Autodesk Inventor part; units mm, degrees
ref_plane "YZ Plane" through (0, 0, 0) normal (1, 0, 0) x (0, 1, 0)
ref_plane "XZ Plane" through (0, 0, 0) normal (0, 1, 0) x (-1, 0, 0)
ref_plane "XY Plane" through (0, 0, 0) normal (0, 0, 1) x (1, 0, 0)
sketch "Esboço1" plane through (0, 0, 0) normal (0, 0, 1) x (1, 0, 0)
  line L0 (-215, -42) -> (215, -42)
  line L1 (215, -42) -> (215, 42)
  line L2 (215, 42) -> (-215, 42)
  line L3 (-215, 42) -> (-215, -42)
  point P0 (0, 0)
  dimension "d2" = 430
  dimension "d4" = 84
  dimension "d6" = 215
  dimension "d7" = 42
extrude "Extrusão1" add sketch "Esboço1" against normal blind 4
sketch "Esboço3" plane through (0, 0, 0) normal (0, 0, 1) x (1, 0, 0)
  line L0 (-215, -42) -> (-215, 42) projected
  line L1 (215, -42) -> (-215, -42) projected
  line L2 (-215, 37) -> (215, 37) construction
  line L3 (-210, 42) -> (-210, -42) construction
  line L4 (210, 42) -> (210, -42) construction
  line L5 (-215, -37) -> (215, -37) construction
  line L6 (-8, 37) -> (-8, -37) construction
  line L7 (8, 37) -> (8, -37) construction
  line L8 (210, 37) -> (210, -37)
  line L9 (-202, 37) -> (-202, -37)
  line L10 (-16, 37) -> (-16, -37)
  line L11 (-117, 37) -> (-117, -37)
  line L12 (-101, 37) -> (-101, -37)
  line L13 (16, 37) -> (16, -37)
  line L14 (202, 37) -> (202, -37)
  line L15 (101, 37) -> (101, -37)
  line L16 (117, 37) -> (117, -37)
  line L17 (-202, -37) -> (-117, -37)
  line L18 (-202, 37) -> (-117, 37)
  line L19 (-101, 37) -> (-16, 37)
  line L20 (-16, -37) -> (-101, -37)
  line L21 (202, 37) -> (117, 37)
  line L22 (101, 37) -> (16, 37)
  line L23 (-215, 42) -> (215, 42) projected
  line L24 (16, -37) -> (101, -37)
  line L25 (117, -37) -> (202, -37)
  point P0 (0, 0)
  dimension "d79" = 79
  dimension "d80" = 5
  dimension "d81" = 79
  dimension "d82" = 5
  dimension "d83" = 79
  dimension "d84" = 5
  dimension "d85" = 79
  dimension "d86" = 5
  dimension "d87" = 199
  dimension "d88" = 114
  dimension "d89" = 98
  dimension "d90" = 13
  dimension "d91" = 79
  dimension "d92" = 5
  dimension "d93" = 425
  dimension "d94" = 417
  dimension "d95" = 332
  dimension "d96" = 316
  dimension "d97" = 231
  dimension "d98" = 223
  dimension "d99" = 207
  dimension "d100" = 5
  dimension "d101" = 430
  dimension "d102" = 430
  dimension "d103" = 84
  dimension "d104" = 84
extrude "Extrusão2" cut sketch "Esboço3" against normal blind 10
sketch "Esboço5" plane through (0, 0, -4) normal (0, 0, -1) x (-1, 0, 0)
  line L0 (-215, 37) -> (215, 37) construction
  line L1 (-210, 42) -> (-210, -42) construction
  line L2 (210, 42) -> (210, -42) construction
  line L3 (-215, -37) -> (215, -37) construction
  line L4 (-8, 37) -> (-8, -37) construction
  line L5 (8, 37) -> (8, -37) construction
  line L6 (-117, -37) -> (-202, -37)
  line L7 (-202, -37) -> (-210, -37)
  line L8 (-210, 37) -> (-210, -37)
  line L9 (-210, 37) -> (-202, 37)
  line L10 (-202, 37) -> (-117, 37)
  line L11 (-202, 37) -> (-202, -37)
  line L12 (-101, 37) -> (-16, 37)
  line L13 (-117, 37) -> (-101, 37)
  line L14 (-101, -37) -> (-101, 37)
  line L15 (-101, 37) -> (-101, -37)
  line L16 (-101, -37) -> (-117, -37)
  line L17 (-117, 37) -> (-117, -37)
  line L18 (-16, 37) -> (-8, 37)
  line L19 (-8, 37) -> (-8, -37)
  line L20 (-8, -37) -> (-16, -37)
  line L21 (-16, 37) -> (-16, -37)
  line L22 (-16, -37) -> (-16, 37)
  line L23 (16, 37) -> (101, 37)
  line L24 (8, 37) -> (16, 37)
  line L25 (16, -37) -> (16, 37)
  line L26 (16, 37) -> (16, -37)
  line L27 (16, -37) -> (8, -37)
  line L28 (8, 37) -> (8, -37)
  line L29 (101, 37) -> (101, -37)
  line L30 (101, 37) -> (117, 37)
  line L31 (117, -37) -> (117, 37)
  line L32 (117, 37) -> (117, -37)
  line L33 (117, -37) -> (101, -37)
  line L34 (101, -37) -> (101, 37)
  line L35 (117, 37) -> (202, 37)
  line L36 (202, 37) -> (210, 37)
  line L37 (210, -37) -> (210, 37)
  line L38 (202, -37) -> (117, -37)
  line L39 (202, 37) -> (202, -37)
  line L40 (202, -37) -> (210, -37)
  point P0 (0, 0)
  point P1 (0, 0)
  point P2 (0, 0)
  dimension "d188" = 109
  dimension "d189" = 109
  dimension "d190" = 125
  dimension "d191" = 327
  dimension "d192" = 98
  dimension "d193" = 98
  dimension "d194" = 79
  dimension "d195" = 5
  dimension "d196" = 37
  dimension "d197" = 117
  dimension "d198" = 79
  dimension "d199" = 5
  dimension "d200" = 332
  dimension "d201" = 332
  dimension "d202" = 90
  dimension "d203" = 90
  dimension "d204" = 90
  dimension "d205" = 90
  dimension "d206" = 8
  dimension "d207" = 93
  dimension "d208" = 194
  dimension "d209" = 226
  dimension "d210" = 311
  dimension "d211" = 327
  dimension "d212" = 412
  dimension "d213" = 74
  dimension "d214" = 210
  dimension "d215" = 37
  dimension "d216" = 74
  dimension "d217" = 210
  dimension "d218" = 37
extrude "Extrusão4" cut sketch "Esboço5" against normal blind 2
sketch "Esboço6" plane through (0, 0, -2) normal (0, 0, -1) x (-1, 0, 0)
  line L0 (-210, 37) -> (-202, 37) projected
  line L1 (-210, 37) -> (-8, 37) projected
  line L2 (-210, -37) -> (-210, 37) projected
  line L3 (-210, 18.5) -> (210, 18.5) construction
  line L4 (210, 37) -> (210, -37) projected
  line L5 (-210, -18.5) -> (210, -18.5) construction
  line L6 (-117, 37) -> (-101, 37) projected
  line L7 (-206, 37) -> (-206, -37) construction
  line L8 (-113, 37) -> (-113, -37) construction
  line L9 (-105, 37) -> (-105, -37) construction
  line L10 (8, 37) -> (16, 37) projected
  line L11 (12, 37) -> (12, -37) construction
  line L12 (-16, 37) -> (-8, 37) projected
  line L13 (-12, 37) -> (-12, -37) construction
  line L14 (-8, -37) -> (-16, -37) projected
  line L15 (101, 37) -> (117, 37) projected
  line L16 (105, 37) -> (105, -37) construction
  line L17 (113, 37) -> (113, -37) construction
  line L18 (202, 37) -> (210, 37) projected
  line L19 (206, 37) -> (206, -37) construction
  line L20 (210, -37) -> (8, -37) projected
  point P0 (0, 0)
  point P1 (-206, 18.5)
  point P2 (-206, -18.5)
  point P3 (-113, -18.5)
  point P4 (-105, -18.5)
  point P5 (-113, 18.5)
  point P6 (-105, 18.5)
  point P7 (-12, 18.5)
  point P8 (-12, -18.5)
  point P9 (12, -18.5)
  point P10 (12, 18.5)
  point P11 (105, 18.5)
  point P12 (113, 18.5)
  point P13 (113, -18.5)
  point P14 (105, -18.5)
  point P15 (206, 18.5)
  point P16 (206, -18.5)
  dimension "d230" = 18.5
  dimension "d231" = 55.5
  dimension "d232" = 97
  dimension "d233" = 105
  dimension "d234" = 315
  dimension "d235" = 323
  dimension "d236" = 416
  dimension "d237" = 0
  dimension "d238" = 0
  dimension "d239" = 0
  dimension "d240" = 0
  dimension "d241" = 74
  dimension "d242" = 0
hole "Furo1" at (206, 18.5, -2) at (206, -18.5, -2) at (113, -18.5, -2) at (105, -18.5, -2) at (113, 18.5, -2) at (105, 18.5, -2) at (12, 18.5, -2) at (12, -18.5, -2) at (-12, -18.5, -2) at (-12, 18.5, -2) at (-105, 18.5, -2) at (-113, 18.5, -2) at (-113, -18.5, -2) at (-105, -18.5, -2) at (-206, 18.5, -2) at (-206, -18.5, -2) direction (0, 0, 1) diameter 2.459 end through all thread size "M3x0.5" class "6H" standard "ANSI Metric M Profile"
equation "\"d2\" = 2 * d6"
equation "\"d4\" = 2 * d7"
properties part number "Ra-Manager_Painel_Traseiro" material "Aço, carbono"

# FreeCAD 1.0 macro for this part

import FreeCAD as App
import Part
import Sketcher

doc = App.newDocument("Part")
body = doc.addObject("PartDesign::Body", "Body")

# Sketch on XY plane
sketch1 = body.newObject("Sketcher::SketchObject", "Sketch")
sketch1.AttachmentSupport = (doc.getObject("XY_Plane"), [""])
sketch1.MapMode = "FlatFace"
sketch1.addGeometry(Part.LineSegment(App.Vector(-215, 42, 0), App.Vector(-215, -42, 0)), False)
sketch1.addGeometry(Part.LineSegment(App.Vector(-215, -42, 0), App.Vector(215, -42, 0)), False)
sketch1.addGeometry(Part.LineSegment(App.Vector(215, -42, 0), App.Vector(215, 42, 0)), False)
sketch1.addGeometry(Part.LineSegment(App.Vector(215, 42, 0), App.Vector(-215, 42, 0)), False)
sketch1.addConstraint(Sketcher.Constraint("Coincident", 0, 2, 1, 1))
sketch1.addConstraint(Sketcher.Constraint("Coincident", 1, 2, 2, 1))
sketch1.addConstraint(Sketcher.Constraint("Coincident", 2, 2, 3, 1))
sketch1.addConstraint(Sketcher.Constraint("Coincident", 3, 2, 0, 1))
sketch1.addConstraint(Sketcher.Constraint("Vertical", 0))
sketch1.addConstraint(Sketcher.Constraint("Horizontal", 1))
sketch1.addConstraint(Sketcher.Constraint("Vertical", 2))
sketch1.addConstraint(Sketcher.Constraint("Horizontal", 3))
sketch1.addConstraint(Sketcher.Constraint("Symmetric", 0, 2, 2, 2, -1, 1))
sketch1.addConstraint(Sketcher.Constraint("DistanceX", 1, 1, 1, 2, 430.0))
sketch1.addConstraint(Sketcher.Constraint("DistanceY", 0, 2, 0, 1, 84.0))
pad1 = body.newObject("PartDesign::Pad", "Pad")
pad1.Profile = sketch1
pad1.Length = 4
pad1.Reversed = True

# Sketch on XY plane
sketch2 = body.newObject("Sketcher::SketchObject", "Sketch001")
sketch2.AttachmentSupport = (doc.getObject("XY_Plane"), [""])
sketch2.MapMode = "FlatFace"
sketch2.addGeometry(Part.LineSegment(App.Vector(-117, 37, 0), App.Vector(-202, 37, 0)), False)
sketch2.addGeometry(Part.LineSegment(App.Vector(-202, 37, 0), App.Vector(-202, -37, 0)), False)
sketch2.addGeometry(Part.LineSegment(App.Vector(-202, -37, 0), App.Vector(-117, -37, 0)), False)
sketch2.addGeometry(Part.LineSegment(App.Vector(-117, -37, 0), App.Vector(-117, 37, 0)), False)
sketch2.addGeometry(Part.LineSegment(App.Vector(-16, -37, 0), App.Vector(-16, 37, 0)), False)
sketch2.addGeometry(Part.LineSegment(App.Vector(-16, 37, 0), App.Vector(-101, 37, 0)), False)
sketch2.addGeometry(Part.LineSegment(App.Vector(-101, 37, 0), App.Vector(-101, -37, 0)), False)
sketch2.addGeometry(Part.LineSegment(App.Vector(-101, -37, 0), App.Vector(-16, -37, 0)), False)
sketch2.addGeometry(Part.LineSegment(App.Vector(101, 37, 0), App.Vector(16, 37, 0)), False)
sketch2.addGeometry(Part.LineSegment(App.Vector(16, 37, 0), App.Vector(16, -37, 0)), False)
sketch2.addGeometry(Part.LineSegment(App.Vector(16, -37, 0), App.Vector(101, -37, 0)), False)
sketch2.addGeometry(Part.LineSegment(App.Vector(101, -37, 0), App.Vector(101, 37, 0)), False)
sketch2.addGeometry(Part.LineSegment(App.Vector(202, -37, 0), App.Vector(202, 37, 0)), False)
sketch2.addGeometry(Part.LineSegment(App.Vector(202, 37, 0), App.Vector(117, 37, 0)), False)
sketch2.addGeometry(Part.LineSegment(App.Vector(117, 37, 0), App.Vector(117, -37, 0)), False)
sketch2.addGeometry(Part.LineSegment(App.Vector(117, -37, 0), App.Vector(202, -37, 0)), False)
sketch2.addConstraint(Sketcher.Constraint("Coincident", 0, 2, 1, 1))
sketch2.addConstraint(Sketcher.Constraint("Coincident", 1, 2, 2, 1))
sketch2.addConstraint(Sketcher.Constraint("Coincident", 2, 2, 3, 1))
sketch2.addConstraint(Sketcher.Constraint("Coincident", 3, 2, 0, 1))
sketch2.addConstraint(Sketcher.Constraint("Coincident", 4, 2, 5, 1))
sketch2.addConstraint(Sketcher.Constraint("Coincident", 5, 2, 6, 1))
sketch2.addConstraint(Sketcher.Constraint("Coincident", 6, 2, 7, 1))
sketch2.addConstraint(Sketcher.Constraint("Coincident", 7, 2, 4, 1))
sketch2.addConstraint(Sketcher.Constraint("Coincident", 8, 2, 9, 1))
sketch2.addConstraint(Sketcher.Constraint("Coincident", 9, 2, 10, 1))
sketch2.addConstraint(Sketcher.Constraint("Coincident", 10, 2, 11, 1))
sketch2.addConstraint(Sketcher.Constraint("Coincident", 11, 2, 8, 1))
sketch2.addConstraint(Sketcher.Constraint("Coincident", 12, 2, 13, 1))
sketch2.addConstraint(Sketcher.Constraint("Coincident", 13, 2, 14, 1))
sketch2.addConstraint(Sketcher.Constraint("Coincident", 14, 2, 15, 1))
sketch2.addConstraint(Sketcher.Constraint("Coincident", 15, 2, 12, 1))
sketch2.addConstraint(Sketcher.Constraint("Horizontal", 0))
sketch2.addConstraint(Sketcher.Constraint("Vertical", 1))
sketch2.addConstraint(Sketcher.Constraint("Horizontal", 2))
sketch2.addConstraint(Sketcher.Constraint("Vertical", 3))
sketch2.addConstraint(Sketcher.Constraint("Vertical", 4))
sketch2.addConstraint(Sketcher.Constraint("Horizontal", 5))
sketch2.addConstraint(Sketcher.Constraint("Vertical", 6))
sketch2.addConstraint(Sketcher.Constraint("Horizontal", 7))
sketch2.addConstraint(Sketcher.Constraint("Horizontal", 8))
sketch2.addConstraint(Sketcher.Constraint("Vertical", 9))
sketch2.addConstraint(Sketcher.Constraint("Horizontal", 10))
sketch2.addConstraint(Sketcher.Constraint("Vertical", 11))
sketch2.addConstraint(Sketcher.Constraint("Vertical", 12))
sketch2.addConstraint(Sketcher.Constraint("Horizontal", 13))
sketch2.addConstraint(Sketcher.Constraint("Vertical", 14))
sketch2.addConstraint(Sketcher.Constraint("Horizontal", 15))
sketch2.addConstraint(Sketcher.Constraint("Symmetric", 7, 2, 8, 2, -1, 1))
sketch2.addConstraint(Sketcher.Constraint("Symmetric", 5, 2, 10, 2, -1, 1))
sketch2.addConstraint(Sketcher.Constraint("Symmetric", 1, 2, 12, 2, -1, 1))
sketch2.addConstraint(Sketcher.Constraint("Symmetric", 3, 2, 14, 2, -1, 1))
sketch2.addConstraint(Sketcher.Constraint("Horizontal", 3, 2, 4, 2))
sketch2.addConstraint(Sketcher.Constraint("Horizontal", 2, 2, 6, 2))
sketch2.addConstraint(Sketcher.Constraint("Horizontal", 5, 2, 8, 2))
sketch2.addConstraint(Sketcher.Constraint("Equal", 2, 5))
sketch2.addConstraint(Sketcher.Constraint("DistanceX", 0, 2, 0, 1, 85.0))
sketch2.addConstraint(Sketcher.Constraint("DistanceY", 1, 2, 1, 1, 74.0))
sketch2.addConstraint(Sketcher.Constraint("DistanceX", 0, 2, -1, 1, 202.0))
sketch2.addConstraint(Sketcher.Constraint("DistanceX", 4, 2, -1, 1, 16.0))
pocket1 = body.newObject("PartDesign::Pocket", "Pocket")
pocket1.Profile = sketch2
pocket1.Length = 10

# Sketch on XY plane
sketch3 = body.newObject("Sketcher::SketchObject", "Sketch002")
sketch3.AttachmentSupport = (doc.getObject("XY_Plane"), [""])
sketch3.MapMode = "FlatFace"
sketch3.AttachmentOffset = App.Placement(App.Vector(0, 0, -4), App.Rotation())
sketch3.addGeometry(Part.LineSegment(App.Vector(8, 37, 0), App.Vector(16, 37, 0)), False)
sketch3.addGeometry(Part.LineSegment(App.Vector(16, 37, 0), App.Vector(16, -37, 0)), False)
sketch3.addGeometry(Part.LineSegment(App.Vector(16, -37, 0), App.Vector(8, -37, 0)), False)
sketch3.addGeometry(Part.LineSegment(App.Vector(8, -37, 0), App.Vector(8, 37, 0)), False)
sketch3.addGeometry(Part.LineSegment(App.Vector(101, 37, 0), App.Vector(210, 37, 0)), False)
sketch3.addGeometry(Part.LineSegment(App.Vector(210, 37, 0), App.Vector(210, -37, 0)), False)
sketch3.addGeometry(Part.LineSegment(App.Vector(210, -37, 0), App.Vector(101, -37, 0)), False)
sketch3.addGeometry(Part.LineSegment(App.Vector(101, -37, 0), App.Vector(101, 37, 0)), False)
sketch3.addGeometry(Part.LineSegment(App.Vector(-101, 37, 0), App.Vector(-101, -37, 0)), False)
sketch3.addGeometry(Part.LineSegment(App.Vector(-101, -37, 0), App.Vector(-210, -37, 0)), False)
sketch3.addGeometry(Part.LineSegment(App.Vector(-210, -37, 0), App.Vector(-210, 37, 0)), False)
sketch3.addGeometry(Part.LineSegment(App.Vector(-210, 37, 0), App.Vector(-101, 37, 0)), False)
sketch3.addGeometry(Part.LineSegment(App.Vector(-16, -37, 0), App.Vector(-16, 37, 0)), False)
sketch3.addGeometry(Part.LineSegment(App.Vector(-16, 37, 0), App.Vector(-8, 37, 0)), False)
sketch3.addGeometry(Part.LineSegment(App.Vector(-8, 37, 0), App.Vector(-8, -37, 0)), False)
sketch3.addGeometry(Part.LineSegment(App.Vector(-8, -37, 0), App.Vector(-16, -37, 0)), False)
sketch3.addConstraint(Sketcher.Constraint("Coincident", 0, 2, 1, 1))
sketch3.addConstraint(Sketcher.Constraint("Coincident", 1, 2, 2, 1))
sketch3.addConstraint(Sketcher.Constraint("Coincident", 2, 2, 3, 1))
sketch3.addConstraint(Sketcher.Constraint("Coincident", 3, 2, 0, 1))
sketch3.addConstraint(Sketcher.Constraint("Coincident", 4, 2, 5, 1))
sketch3.addConstraint(Sketcher.Constraint("Coincident", 5, 2, 6, 1))
sketch3.addConstraint(Sketcher.Constraint("Coincident", 6, 2, 7, 1))
sketch3.addConstraint(Sketcher.Constraint("Coincident", 7, 2, 4, 1))
sketch3.addConstraint(Sketcher.Constraint("Coincident", 8, 2, 9, 1))
sketch3.addConstraint(Sketcher.Constraint("Coincident", 9, 2, 10, 1))
sketch3.addConstraint(Sketcher.Constraint("Coincident", 10, 2, 11, 1))
sketch3.addConstraint(Sketcher.Constraint("Coincident", 11, 2, 8, 1))
sketch3.addConstraint(Sketcher.Constraint("Coincident", 12, 2, 13, 1))
sketch3.addConstraint(Sketcher.Constraint("Coincident", 13, 2, 14, 1))
sketch3.addConstraint(Sketcher.Constraint("Coincident", 14, 2, 15, 1))
sketch3.addConstraint(Sketcher.Constraint("Coincident", 15, 2, 12, 1))
sketch3.addConstraint(Sketcher.Constraint("Horizontal", 0))
sketch3.addConstraint(Sketcher.Constraint("Vertical", 1))
sketch3.addConstraint(Sketcher.Constraint("Horizontal", 2))
sketch3.addConstraint(Sketcher.Constraint("Vertical", 3))
sketch3.addConstraint(Sketcher.Constraint("Horizontal", 4))
sketch3.addConstraint(Sketcher.Constraint("Vertical", 5))
sketch3.addConstraint(Sketcher.Constraint("Horizontal", 6))
sketch3.addConstraint(Sketcher.Constraint("Vertical", 7))
sketch3.addConstraint(Sketcher.Constraint("Vertical", 8))
sketch3.addConstraint(Sketcher.Constraint("Horizontal", 9))
sketch3.addConstraint(Sketcher.Constraint("Vertical", 10))
sketch3.addConstraint(Sketcher.Constraint("Horizontal", 11))
sketch3.addConstraint(Sketcher.Constraint("Vertical", 12))
sketch3.addConstraint(Sketcher.Constraint("Horizontal", 13))
sketch3.addConstraint(Sketcher.Constraint("Vertical", 14))
sketch3.addConstraint(Sketcher.Constraint("Horizontal", 15))
sketch3.addConstraint(Sketcher.Constraint("Symmetric", 7, 2, 8, 2, -1, 1))
sketch3.addConstraint(Sketcher.Constraint("Symmetric", 5, 2, 10, 2, -1, 1))
sketch3.addConstraint(Sketcher.Constraint("Symmetric", 1, 2, 12, 2, -1, 1))
sketch3.addConstraint(Sketcher.Constraint("Symmetric", 3, 2, 14, 2, -1, 1))
sketch3.addConstraint(Sketcher.Constraint("Horizontal", 3, 2, 4, 2))
sketch3.addConstraint(Sketcher.Constraint("Horizontal", 2, 2, 5, 2))
sketch3.addConstraint(Sketcher.Constraint("Horizontal", 6, 2, 8, 2))
sketch3.addConstraint(Sketcher.Constraint("DistanceX", 0, 1, 0, 2, 8.0))
sketch3.addConstraint(Sketcher.Constraint("DistanceX", 4, 1, 4, 2, 109.0))
sketch3.addConstraint(Sketcher.Constraint("DistanceY", 1, 2, 1, 1, 74.0))
sketch3.addConstraint(Sketcher.Constraint("DistanceX", -1, 1, 2, 2, 8.0))
sketch3.addConstraint(Sketcher.Constraint("DistanceX", -1, 1, 4, 2, 210.0))
pocket2 = body.newObject("PartDesign::Pocket", "Pocket001")
pocket2.Profile = sketch3
pocket2.Length = 2
pocket2.Reversed = True

# Sketch on XY plane
sketch4 = body.newObject("Sketcher::SketchObject", "Sketch003")
sketch4.AttachmentSupport = (doc.getObject("XY_Plane"), [""])
sketch4.MapMode = "FlatFace"
sketch4.AttachmentOffset = App.Placement(App.Vector(0, 0, -2), App.Rotation())
sketch4.addGeometry(Part.Circle(App.Vector(206, 18.5, 0), App.Vector(0, 0, 1), 1.2295), False)
sketch4.addGeometry(Part.Circle(App.Vector(206, -18.5, 0), App.Vector(0, 0, 1), 1.2295), False)
sketch4.addGeometry(Part.Circle(App.Vector(113, -18.5, 0), App.Vector(0, 0, 1), 1.2295), False)
sketch4.addGeometry(Part.Circle(App.Vector(105, -18.5, 0), App.Vector(0, 0, 1), 1.2295), False)
sketch4.addGeometry(Part.Circle(App.Vector(113, 18.5, 0), App.Vector(0, 0, 1), 1.2295), False)
sketch4.addGeometry(Part.Circle(App.Vector(105, 18.5, 0), App.Vector(0, 0, 1), 1.2295), False)
sketch4.addGeometry(Part.Circle(App.Vector(12, 18.5, 0), App.Vector(0, 0, 1), 1.2295), False)
sketch4.addGeometry(Part.Circle(App.Vector(12, -18.5, 0), App.Vector(0, 0, 1), 1.2295), False)
sketch4.addGeometry(Part.Circle(App.Vector(-12, -18.5, 0), App.Vector(0, 0, 1), 1.2295), False)
sketch4.addGeometry(Part.Circle(App.Vector(-12, 18.5, 0), App.Vector(0, 0, 1), 1.2295), False)
sketch4.addGeometry(Part.Circle(App.Vector(-105, 18.5, 0), App.Vector(0, 0, 1), 1.2295), False)
sketch4.addGeometry(Part.Circle(App.Vector(-113, 18.5, 0), App.Vector(0, 0, 1), 1.2295), False)
sketch4.addGeometry(Part.Circle(App.Vector(-113, -18.5, 0), App.Vector(0, 0, 1), 1.2295), False)
sketch4.addGeometry(Part.Circle(App.Vector(-105, -18.5, 0), App.Vector(0, 0, 1), 1.2295), False)
sketch4.addGeometry(Part.Circle(App.Vector(-206, 18.5, 0), App.Vector(0, 0, 1), 1.2295), False)
sketch4.addGeometry(Part.Circle(App.Vector(-206, -18.5, 0), App.Vector(0, 0, 1), 1.2295), False)
sketch4.addConstraint(Sketcher.Constraint("Equal", 0, 1))
sketch4.addConstraint(Sketcher.Constraint("Equal", 1, 2))
sketch4.addConstraint(Sketcher.Constraint("Equal", 2, 3))
sketch4.addConstraint(Sketcher.Constraint("Equal", 3, 4))
sketch4.addConstraint(Sketcher.Constraint("Equal", 4, 5))
sketch4.addConstraint(Sketcher.Constraint("Equal", 5, 6))
sketch4.addConstraint(Sketcher.Constraint("Equal", 6, 7))
sketch4.addConstraint(Sketcher.Constraint("Equal", 7, 8))
sketch4.addConstraint(Sketcher.Constraint("Equal", 8, 9))
sketch4.addConstraint(Sketcher.Constraint("Equal", 9, 10))
sketch4.addConstraint(Sketcher.Constraint("Equal", 10, 11))
sketch4.addConstraint(Sketcher.Constraint("Equal", 11, 12))
sketch4.addConstraint(Sketcher.Constraint("Equal", 12, 13))
sketch4.addConstraint(Sketcher.Constraint("Equal", 13, 14))
sketch4.addConstraint(Sketcher.Constraint("Equal", 14, 15))
sketch4.addConstraint(Sketcher.Constraint("Symmetric", 6, 3, 8, 3, -1, 1))
sketch4.addConstraint(Sketcher.Constraint("Symmetric", 7, 3, 9, 3, -1, 1))
sketch4.addConstraint(Sketcher.Constraint("Symmetric", 3, 3, 10, 3, -1, 1))
sketch4.addConstraint(Sketcher.Constraint("Symmetric", 2, 3, 11, 3, -1, 1))
sketch4.addConstraint(Sketcher.Constraint("Symmetric", 4, 3, 12, 3, -1, 1))
sketch4.addConstraint(Sketcher.Constraint("Symmetric", 5, 3, 13, 3, -1, 1))
sketch4.addConstraint(Sketcher.Constraint("Symmetric", 1, 3, 14, 3, -1, 1))
sketch4.addConstraint(Sketcher.Constraint("Symmetric", 0, 3, 15, 3, -1, 1))
sketch4.addConstraint(Sketcher.Constraint("Symmetric", 7, 3, 8, 3, -2))
sketch4.addConstraint(Sketcher.Constraint("Symmetric", 5, 3, 10, 3, -2))
sketch4.addConstraint(Sketcher.Constraint("Symmetric", 4, 3, 11, 3, -2))
sketch4.addConstraint(Sketcher.Constraint("Symmetric", 0, 3, 14, 3, -2))
sketch4.addConstraint(Sketcher.Constraint("Horizontal", 1, 3, 2, 3))
sketch4.addConstraint(Sketcher.Constraint("Horizontal", 2, 3, 3, 3))
sketch4.addConstraint(Sketcher.Constraint("Horizontal", 5, 3, 6, 3))
sketch4.addConstraint(Sketcher.Constraint("Diameter", 0, 2.459))
sketch4.addConstraint(Sketcher.Constraint("DistanceX", -1, 1, 0, 3, 206.0))
sketch4.addConstraint(Sketcher.Constraint("DistanceX", -1, 1, 2, 3, 113.0))
sketch4.addConstraint(Sketcher.Constraint("DistanceX", -1, 1, 3, 3, 105.0))
sketch4.addConstraint(Sketcher.Constraint("DistanceX", -1, 1, 6, 3, 12.0))
sketch4.addConstraint(Sketcher.Constraint("DistanceY", 1, 3, 0, 3, 37.0))
doc.recompute()
hole = body.newObject("PartDesign::Hole", "Hole")
hole.Profile = sketch4
hole.ThreadType = "None"
hole.Diameter = 2.459
hole.DepthType = "ThroughAll"
hole.Reversed = True

doc.recompute()
